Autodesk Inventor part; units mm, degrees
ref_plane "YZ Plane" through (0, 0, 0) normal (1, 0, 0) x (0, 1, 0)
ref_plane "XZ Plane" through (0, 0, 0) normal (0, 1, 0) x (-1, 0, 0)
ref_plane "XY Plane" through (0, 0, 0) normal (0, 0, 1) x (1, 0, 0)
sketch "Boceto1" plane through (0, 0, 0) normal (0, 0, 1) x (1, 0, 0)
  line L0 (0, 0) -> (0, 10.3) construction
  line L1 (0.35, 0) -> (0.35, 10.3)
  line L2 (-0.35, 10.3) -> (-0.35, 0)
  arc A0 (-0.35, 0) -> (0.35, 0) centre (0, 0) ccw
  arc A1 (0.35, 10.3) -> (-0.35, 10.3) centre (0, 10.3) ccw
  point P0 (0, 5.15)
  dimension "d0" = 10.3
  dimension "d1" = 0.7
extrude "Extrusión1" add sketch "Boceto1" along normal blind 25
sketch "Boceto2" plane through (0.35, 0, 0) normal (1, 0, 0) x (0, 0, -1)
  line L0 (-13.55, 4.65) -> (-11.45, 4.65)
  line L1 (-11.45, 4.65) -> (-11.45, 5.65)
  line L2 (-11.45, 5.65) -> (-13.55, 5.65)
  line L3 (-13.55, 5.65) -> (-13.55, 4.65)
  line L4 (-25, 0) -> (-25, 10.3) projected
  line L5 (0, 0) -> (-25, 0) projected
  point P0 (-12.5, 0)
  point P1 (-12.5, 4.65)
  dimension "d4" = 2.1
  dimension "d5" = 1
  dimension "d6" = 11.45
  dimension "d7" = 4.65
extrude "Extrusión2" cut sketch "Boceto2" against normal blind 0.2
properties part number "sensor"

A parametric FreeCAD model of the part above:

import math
import FreeCAD as App
import Part
import Sketcher


def add_polygon(sketch, points):
    """Adds a closed chain of lines whose ends are joined by coincident constraints."""
    first, n = sketch.GeometryCount, len(points)
    for a, b in zip(points, points[1:] + points[:1]):
        sketch.addGeometry(Part.LineSegment(App.Vector(*a, 0), App.Vector(*b, 0)), False)
    for i in range(n):
        sketch.addConstraint(Sketcher.Constraint("Coincident", first + i, 2, first + (i + 1) % n, 1))

doc = App.newDocument("Part")
body = doc.addObject("PartDesign::Body", "Body")

# Sketch on XY plane
sketch1 = body.newObject("Sketcher::SketchObject", "Sketch")
sketch1.AttachmentSupport = (doc.getObject("XY_Plane"), [""])
sketch1.MapMode = "FlatFace"
sketch1.addGeometry([
    Part.ArcOfCircle(Part.Circle(App.Vector(0, 0, 0), App.Vector(0, 0, 1), 0.35), math.radians(180), math.radians(360)),
    Part.LineSegment(App.Vector(0.35, 0, 0), App.Vector(0.35, 10.3, 0)),
    Part.ArcOfCircle(Part.Circle(App.Vector(0, 10.3, 0), App.Vector(0, 0, 1), 0.35), math.radians(0), math.radians(180)),
    Part.LineSegment(App.Vector(-0.35, 10.3, 0), App.Vector(-0.35, 0, 0)),
], False)
sketch1.addConstraint([
    Sketcher.Constraint("Tangent", 0, 2, 1, 1),
    Sketcher.Constraint("Tangent", 1, 2, 2, 1),
    Sketcher.Constraint("Tangent", 2, 2, 3, 1),
    Sketcher.Constraint("Tangent", 3, 2, 0, 1),
    Sketcher.Constraint("Vertical", 1),
    Sketcher.Constraint("Vertical", 3),
    Sketcher.Constraint("Coincident", 0, 3, -1, 1),
    Sketcher.Constraint("Radius", 0, 0.35),
    Sketcher.Constraint("DistanceY", 1, 1, 1, 2, 10.3),
])
pad1 = body.newObject("PartDesign::Pad", "Pad")
pad1.Profile = sketch1
pad1.Length = 25

# Sketch on YZ plane
sketch2 = body.newObject("Sketcher::SketchObject", "Sketch001")
sketch2.AttachmentSupport = (doc.getObject("YZ_Plane"), [""])
sketch2.MapMode = "FlatFace"
sketch2.AttachmentOffset = App.Placement(App.Vector(0, 0, 0.35), App.Rotation())
add_polygon(sketch2, [(5.65, 13.55), (4.65, 13.55), (4.65, 11.45), (5.65, 11.45)])  # lines 0-3
sketch2.addConstraint([
    Sketcher.Constraint("Horizontal", 0),
    Sketcher.Constraint("Vertical", 1),
    Sketcher.Constraint("Horizontal", 2),
    Sketcher.Constraint("Vertical", 3),
    Sketcher.Constraint("DistanceX", 0, 2, 0, 1, 1.0),
    Sketcher.Constraint("DistanceY", 1, 2, 1, 1, 2.1),
    Sketcher.Constraint("DistanceX", -1, 1, 0, 2, 4.65),
    Sketcher.Constraint("DistanceY", -1, 1, 1, 2, 11.45),
])
pocket1 = body.newObject("PartDesign::Pocket", "Pocket")
pocket1.Profile = sketch2
pocket1.Length = 0.2

doc.recompute()
